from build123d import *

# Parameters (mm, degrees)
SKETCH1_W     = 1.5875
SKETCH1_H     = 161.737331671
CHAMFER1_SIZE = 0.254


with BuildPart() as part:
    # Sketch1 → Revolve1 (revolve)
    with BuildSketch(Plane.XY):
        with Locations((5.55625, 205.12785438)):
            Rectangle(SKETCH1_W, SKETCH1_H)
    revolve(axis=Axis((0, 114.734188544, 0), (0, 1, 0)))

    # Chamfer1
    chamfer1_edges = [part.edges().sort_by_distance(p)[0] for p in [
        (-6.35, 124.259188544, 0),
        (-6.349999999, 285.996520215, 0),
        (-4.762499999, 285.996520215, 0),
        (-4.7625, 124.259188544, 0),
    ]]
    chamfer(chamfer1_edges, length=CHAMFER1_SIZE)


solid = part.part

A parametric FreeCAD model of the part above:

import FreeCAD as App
import Part
import Sketcher

V = App.Vector
Q = App.Units.Quantity


def edges_at(feature, points):
    """Names of the edges that pass closest to the given points."""
    edges = feature.Shape.Edges
    near = lambda p: min(range(len(edges)), key=lambda i: edges[i].distToShape(Part.Vertex(*p))[0])
    return sorted({f"Edge{near(p) + 1}" for p in points})


def add_polygon(sketch, points):
    """Adds a closed chain of lines whose ends are joined by coincident constraints."""
    first, n = sketch.GeometryCount, len(points)
    for a, b in zip(points, points[1:] + points[:1]):
        sketch.addGeometry(Part.LineSegment(App.Vector(*a, 0), App.Vector(*b, 0)), False)
    for i in range(n):
        sketch.addConstraint(Sketcher.Constraint("Coincident", first + i, 2, first + (i + 1) % n, 1))

doc = App.newDocument("Part")
body = doc.addObject("PartDesign::Body", "Body")

# Sketch on XY plane
sketch1 = body.newObject("Sketcher::SketchObject", "Sketch")
sketch1.AttachmentSupport = (doc.getObject("XY_Plane"), [""])
sketch1.MapMode = "FlatFace"
add_polygon(sketch1, [(4.7625, 285.99652), (4.7625, 124.259189), (6.35, 124.259189), (6.35, 285.99652)])  # lines 0-3
sketch1.addConstraint([
    Sketcher.Constraint("Vertical", 0),
    Sketcher.Constraint("Horizontal", 1),
    Sketcher.Constraint("Vertical", 2),
    Sketcher.Constraint("Horizontal", 3),
    Sketcher.Constraint("DistanceX", 1, 1, 1, 2, Q("0.0625 in")),
    Sketcher.Constraint("DistanceX", -1, 1, 1, 2, Q("0.25 in")),
    Sketcher.Constraint("DistanceY", 0, 2, 0, 1, Q("161.737332 mm")),
    Sketcher.Constraint("DistanceY", -1, 1, 0, 2, Q("124.259189 mm")),
])
revolution = body.newObject("PartDesign::Revolution", "Revolution")
revolution.Profile = sketch1
revolution.ReferenceAxis = (sketch1, ["V_Axis"])
revolution.Angle = 360
doc.recompute()

chamfer = body.newObject("PartDesign::Chamfer", "Chamfer")
chamfer.Base = (revolution, edges_at(revolution, [
    (-6.35, 124.259, 0),
    (-6.35, 285.997, 0),
    (-4.763, 285.997, 0),
    (-4.763, 124.259, 0),
]))
chamfer.Size = Q("0.01 in")

doc.recompute()
